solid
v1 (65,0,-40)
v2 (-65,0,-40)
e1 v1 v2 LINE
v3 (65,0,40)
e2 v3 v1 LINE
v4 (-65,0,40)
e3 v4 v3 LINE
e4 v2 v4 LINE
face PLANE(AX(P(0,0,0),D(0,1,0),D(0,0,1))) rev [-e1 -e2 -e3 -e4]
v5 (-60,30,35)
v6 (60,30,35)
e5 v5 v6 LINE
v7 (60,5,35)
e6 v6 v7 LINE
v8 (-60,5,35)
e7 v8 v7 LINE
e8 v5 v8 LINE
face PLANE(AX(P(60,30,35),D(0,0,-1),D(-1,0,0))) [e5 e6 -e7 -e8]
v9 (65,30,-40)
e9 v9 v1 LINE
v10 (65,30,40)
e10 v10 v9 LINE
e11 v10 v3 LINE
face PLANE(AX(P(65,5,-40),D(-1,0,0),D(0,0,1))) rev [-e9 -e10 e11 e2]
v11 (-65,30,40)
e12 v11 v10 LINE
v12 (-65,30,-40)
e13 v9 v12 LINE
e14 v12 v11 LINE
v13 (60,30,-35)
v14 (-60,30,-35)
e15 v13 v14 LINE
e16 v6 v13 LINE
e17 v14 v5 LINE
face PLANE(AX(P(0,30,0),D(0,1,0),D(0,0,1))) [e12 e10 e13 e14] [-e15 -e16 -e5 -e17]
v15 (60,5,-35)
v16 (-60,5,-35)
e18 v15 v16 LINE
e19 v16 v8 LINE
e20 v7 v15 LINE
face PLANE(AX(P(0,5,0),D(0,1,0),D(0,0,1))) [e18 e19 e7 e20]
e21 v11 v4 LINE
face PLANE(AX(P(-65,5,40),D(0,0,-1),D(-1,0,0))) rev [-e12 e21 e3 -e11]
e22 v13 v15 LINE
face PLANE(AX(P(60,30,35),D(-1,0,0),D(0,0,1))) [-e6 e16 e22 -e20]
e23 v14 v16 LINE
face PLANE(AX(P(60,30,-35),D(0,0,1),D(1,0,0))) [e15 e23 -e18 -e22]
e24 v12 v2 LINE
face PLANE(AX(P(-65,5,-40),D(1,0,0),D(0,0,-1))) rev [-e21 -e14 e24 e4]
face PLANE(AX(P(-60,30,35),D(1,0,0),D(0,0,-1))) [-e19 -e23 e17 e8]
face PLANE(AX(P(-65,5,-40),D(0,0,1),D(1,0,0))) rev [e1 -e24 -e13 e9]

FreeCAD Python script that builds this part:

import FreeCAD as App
import Part
import Sketcher

doc = App.newDocument("Part")
body = doc.addObject("PartDesign::Body", "Body")

sketch1 = body.newObject("Sketcher::SketchObject", "Sketch")
sketch1.AttachmentSupport = (doc.getObject("XZ_Plane"), [""])
sketch1.MapMode = "FlatFace"
sketch1.addGeometry([
    Part.LineSegment(App.Vector(-65, -40, 0), App.Vector(-65, 40, 0)),
    Part.LineSegment(App.Vector(-65, 40, 0), App.Vector(65, 40, 0)),
    Part.LineSegment(App.Vector(65, 40, 0), App.Vector(65, -40, 0)),
    Part.LineSegment(App.Vector(65, -40, 0), App.Vector(-65, -40, 0)),
], False)
sketch1.addConstraint([
    Sketcher.Constraint("Coincident", 0, 2, 1, 1),
    Sketcher.Constraint("Coincident", 1, 2, 2, 1),
    Sketcher.Constraint("Coincident", 2, 2, 3, 1),
    Sketcher.Constraint("Coincident", 3, 2, 0, 1),
    Sketcher.Constraint("Vertical", 0),
    Sketcher.Constraint("Horizontal", 1),
    Sketcher.Constraint("Vertical", 2),
    Sketcher.Constraint("Horizontal", 3),
    Sketcher.Constraint("Symmetric", 0, 2, 2, 2, -1, 1),
    Sketcher.Constraint("DistanceX", 1, 1, 1, 2, 130.0),
    Sketcher.Constraint("DistanceY", 0, 1, 0, 2, 80.0),
])
pad1 = body.newObject("PartDesign::Pad", "Pad")
pad1.Profile = sketch1
pad1.Length = 5
pad1.Reversed = True

sketch2 = body.newObject("Sketcher::SketchObject", "Sketch001")
sketch2.AttachmentSupport = (doc.getObject("XZ_Plane"), [""])
sketch2.MapMode = "FlatFace"
sketch2.AttachmentOffset = App.Placement(App.Vector(0, 0, -5), App.Rotation())
sketch2.addGeometry([
    Part.LineSegment(App.Vector(-65, -40, 0), App.Vector(-65, 40, 0)),
    Part.LineSegment(App.Vector(-65, 40, 0), App.Vector(65, 40, 0)),
    Part.LineSegment(App.Vector(65, 40, 0), App.Vector(65, -40, 0)),
    Part.LineSegment(App.Vector(65, -40, 0), App.Vector(-65, -40, 0)),
    Part.LineSegment(App.Vector(60, 35, 0), App.Vector(-60, 35, 0)),
    Part.LineSegment(App.Vector(-60, 35, 0), App.Vector(-60, -35, 0)),
    Part.LineSegment(App.Vector(-60, -35, 0), App.Vector(60, -35, 0)),
    Part.LineSegment(App.Vector(60, -35, 0), App.Vector(60, 35, 0)),
], False)
sketch2.addConstraint([
    Sketcher.Constraint("Coincident", 0, 2, 1, 1),
    Sketcher.Constraint("Coincident", 1, 2, 2, 1),
    Sketcher.Constraint("Coincident", 2, 2, 3, 1),
    Sketcher.Constraint("Coincident", 3, 2, 0, 1),
    Sketcher.Constraint("Coincident", 4, 2, 5, 1),
    Sketcher.Constraint("Coincident", 5, 2, 6, 1),
    Sketcher.Constraint("Coincident", 6, 2, 7, 1),
    Sketcher.Constraint("Coincident", 7, 2, 4, 1),
    Sketcher.Constraint("Vertical", 0),
    Sketcher.Constraint("Horizontal", 1),
    Sketcher.Constraint("Vertical", 2),
    Sketcher.Constraint("Horizontal", 3),
    Sketcher.Constraint("Horizontal", 4),
    Sketcher.Constraint("Vertical", 5),
    Sketcher.Constraint("Horizontal", 6),
    Sketcher.Constraint("Vertical", 7),
    Sketcher.Constraint("Symmetric", 0, 2, 2, 2, -1, 1),
    Sketcher.Constraint("Symmetric", 4, 2, 6, 2, -1, 1),
    Sketcher.Constraint("DistanceX", 1, 1, 1, 2, 130.0),
    Sketcher.Constraint("DistanceX", 4, 2, 4, 1, 120.0),
    Sketcher.Constraint("DistanceY", 0, 1, 0, 2, 80.0),
    Sketcher.Constraint("DistanceY", 5, 2, 5, 1, 70.0),
])
pad2 = body.newObject("PartDesign::Pad", "Pad001")
pad2.Profile = sketch2
pad2.Length = 25
pad2.Reversed = True

doc.recompute()
